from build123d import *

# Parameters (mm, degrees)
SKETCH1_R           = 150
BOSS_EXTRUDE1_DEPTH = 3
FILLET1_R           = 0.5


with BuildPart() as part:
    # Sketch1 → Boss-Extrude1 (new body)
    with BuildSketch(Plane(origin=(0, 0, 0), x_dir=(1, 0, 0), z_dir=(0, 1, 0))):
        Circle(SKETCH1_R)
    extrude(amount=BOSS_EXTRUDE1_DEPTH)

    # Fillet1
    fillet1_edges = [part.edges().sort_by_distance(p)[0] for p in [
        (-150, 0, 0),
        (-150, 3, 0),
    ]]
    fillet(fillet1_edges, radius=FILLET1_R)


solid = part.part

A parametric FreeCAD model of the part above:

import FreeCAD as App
import Part
import Sketcher
from FreeCAD import Vector
Q = App.Units.Quantity


def edges_at(feature, points):
    """Names of the edges that pass closest to the given points."""
    edges = feature.Shape.Edges
    near = lambda p: min(range(len(edges)), key=lambda i: edges[i].distToShape(Part.Vertex(*p))[0])
    return sorted({f"Edge{near(p) + 1}" for p in points})

doc = App.newDocument("Part")
body = doc.addObject("PartDesign::Body", "Body")

# Sketch on XZ plane
sketch1 = body.newObject("Sketcher::SketchObject", "Sketch")
sketch1.AttachmentSupport = (doc.getObject("XZ_Plane"), [""])
sketch1.MapMode = "FlatFace"
sketch1.addGeometry(Part.Circle(Vector(0, 0, 0), Vector(0, 0, 1), 150), False)
sketch1.addConstraint(Sketcher.Constraint("Coincident", 0, 3, -1, 1))
sketch1.addConstraint(Sketcher.Constraint("Diameter", 0, Q("300 mm")))
pad1 = body.newObject("PartDesign::Pad", "Pad")
pad1.Profile = sketch1
pad1.Length = 3
pad1.Reversed = True
doc.recompute()

fillet = body.newObject("PartDesign::Fillet", "Fillet")
fillet.Base = (pad1, edges_at(pad1, [(-150, 0, 0), (-150, 3, 0)]))
fillet.Radius = 0.5

doc.recompute()
